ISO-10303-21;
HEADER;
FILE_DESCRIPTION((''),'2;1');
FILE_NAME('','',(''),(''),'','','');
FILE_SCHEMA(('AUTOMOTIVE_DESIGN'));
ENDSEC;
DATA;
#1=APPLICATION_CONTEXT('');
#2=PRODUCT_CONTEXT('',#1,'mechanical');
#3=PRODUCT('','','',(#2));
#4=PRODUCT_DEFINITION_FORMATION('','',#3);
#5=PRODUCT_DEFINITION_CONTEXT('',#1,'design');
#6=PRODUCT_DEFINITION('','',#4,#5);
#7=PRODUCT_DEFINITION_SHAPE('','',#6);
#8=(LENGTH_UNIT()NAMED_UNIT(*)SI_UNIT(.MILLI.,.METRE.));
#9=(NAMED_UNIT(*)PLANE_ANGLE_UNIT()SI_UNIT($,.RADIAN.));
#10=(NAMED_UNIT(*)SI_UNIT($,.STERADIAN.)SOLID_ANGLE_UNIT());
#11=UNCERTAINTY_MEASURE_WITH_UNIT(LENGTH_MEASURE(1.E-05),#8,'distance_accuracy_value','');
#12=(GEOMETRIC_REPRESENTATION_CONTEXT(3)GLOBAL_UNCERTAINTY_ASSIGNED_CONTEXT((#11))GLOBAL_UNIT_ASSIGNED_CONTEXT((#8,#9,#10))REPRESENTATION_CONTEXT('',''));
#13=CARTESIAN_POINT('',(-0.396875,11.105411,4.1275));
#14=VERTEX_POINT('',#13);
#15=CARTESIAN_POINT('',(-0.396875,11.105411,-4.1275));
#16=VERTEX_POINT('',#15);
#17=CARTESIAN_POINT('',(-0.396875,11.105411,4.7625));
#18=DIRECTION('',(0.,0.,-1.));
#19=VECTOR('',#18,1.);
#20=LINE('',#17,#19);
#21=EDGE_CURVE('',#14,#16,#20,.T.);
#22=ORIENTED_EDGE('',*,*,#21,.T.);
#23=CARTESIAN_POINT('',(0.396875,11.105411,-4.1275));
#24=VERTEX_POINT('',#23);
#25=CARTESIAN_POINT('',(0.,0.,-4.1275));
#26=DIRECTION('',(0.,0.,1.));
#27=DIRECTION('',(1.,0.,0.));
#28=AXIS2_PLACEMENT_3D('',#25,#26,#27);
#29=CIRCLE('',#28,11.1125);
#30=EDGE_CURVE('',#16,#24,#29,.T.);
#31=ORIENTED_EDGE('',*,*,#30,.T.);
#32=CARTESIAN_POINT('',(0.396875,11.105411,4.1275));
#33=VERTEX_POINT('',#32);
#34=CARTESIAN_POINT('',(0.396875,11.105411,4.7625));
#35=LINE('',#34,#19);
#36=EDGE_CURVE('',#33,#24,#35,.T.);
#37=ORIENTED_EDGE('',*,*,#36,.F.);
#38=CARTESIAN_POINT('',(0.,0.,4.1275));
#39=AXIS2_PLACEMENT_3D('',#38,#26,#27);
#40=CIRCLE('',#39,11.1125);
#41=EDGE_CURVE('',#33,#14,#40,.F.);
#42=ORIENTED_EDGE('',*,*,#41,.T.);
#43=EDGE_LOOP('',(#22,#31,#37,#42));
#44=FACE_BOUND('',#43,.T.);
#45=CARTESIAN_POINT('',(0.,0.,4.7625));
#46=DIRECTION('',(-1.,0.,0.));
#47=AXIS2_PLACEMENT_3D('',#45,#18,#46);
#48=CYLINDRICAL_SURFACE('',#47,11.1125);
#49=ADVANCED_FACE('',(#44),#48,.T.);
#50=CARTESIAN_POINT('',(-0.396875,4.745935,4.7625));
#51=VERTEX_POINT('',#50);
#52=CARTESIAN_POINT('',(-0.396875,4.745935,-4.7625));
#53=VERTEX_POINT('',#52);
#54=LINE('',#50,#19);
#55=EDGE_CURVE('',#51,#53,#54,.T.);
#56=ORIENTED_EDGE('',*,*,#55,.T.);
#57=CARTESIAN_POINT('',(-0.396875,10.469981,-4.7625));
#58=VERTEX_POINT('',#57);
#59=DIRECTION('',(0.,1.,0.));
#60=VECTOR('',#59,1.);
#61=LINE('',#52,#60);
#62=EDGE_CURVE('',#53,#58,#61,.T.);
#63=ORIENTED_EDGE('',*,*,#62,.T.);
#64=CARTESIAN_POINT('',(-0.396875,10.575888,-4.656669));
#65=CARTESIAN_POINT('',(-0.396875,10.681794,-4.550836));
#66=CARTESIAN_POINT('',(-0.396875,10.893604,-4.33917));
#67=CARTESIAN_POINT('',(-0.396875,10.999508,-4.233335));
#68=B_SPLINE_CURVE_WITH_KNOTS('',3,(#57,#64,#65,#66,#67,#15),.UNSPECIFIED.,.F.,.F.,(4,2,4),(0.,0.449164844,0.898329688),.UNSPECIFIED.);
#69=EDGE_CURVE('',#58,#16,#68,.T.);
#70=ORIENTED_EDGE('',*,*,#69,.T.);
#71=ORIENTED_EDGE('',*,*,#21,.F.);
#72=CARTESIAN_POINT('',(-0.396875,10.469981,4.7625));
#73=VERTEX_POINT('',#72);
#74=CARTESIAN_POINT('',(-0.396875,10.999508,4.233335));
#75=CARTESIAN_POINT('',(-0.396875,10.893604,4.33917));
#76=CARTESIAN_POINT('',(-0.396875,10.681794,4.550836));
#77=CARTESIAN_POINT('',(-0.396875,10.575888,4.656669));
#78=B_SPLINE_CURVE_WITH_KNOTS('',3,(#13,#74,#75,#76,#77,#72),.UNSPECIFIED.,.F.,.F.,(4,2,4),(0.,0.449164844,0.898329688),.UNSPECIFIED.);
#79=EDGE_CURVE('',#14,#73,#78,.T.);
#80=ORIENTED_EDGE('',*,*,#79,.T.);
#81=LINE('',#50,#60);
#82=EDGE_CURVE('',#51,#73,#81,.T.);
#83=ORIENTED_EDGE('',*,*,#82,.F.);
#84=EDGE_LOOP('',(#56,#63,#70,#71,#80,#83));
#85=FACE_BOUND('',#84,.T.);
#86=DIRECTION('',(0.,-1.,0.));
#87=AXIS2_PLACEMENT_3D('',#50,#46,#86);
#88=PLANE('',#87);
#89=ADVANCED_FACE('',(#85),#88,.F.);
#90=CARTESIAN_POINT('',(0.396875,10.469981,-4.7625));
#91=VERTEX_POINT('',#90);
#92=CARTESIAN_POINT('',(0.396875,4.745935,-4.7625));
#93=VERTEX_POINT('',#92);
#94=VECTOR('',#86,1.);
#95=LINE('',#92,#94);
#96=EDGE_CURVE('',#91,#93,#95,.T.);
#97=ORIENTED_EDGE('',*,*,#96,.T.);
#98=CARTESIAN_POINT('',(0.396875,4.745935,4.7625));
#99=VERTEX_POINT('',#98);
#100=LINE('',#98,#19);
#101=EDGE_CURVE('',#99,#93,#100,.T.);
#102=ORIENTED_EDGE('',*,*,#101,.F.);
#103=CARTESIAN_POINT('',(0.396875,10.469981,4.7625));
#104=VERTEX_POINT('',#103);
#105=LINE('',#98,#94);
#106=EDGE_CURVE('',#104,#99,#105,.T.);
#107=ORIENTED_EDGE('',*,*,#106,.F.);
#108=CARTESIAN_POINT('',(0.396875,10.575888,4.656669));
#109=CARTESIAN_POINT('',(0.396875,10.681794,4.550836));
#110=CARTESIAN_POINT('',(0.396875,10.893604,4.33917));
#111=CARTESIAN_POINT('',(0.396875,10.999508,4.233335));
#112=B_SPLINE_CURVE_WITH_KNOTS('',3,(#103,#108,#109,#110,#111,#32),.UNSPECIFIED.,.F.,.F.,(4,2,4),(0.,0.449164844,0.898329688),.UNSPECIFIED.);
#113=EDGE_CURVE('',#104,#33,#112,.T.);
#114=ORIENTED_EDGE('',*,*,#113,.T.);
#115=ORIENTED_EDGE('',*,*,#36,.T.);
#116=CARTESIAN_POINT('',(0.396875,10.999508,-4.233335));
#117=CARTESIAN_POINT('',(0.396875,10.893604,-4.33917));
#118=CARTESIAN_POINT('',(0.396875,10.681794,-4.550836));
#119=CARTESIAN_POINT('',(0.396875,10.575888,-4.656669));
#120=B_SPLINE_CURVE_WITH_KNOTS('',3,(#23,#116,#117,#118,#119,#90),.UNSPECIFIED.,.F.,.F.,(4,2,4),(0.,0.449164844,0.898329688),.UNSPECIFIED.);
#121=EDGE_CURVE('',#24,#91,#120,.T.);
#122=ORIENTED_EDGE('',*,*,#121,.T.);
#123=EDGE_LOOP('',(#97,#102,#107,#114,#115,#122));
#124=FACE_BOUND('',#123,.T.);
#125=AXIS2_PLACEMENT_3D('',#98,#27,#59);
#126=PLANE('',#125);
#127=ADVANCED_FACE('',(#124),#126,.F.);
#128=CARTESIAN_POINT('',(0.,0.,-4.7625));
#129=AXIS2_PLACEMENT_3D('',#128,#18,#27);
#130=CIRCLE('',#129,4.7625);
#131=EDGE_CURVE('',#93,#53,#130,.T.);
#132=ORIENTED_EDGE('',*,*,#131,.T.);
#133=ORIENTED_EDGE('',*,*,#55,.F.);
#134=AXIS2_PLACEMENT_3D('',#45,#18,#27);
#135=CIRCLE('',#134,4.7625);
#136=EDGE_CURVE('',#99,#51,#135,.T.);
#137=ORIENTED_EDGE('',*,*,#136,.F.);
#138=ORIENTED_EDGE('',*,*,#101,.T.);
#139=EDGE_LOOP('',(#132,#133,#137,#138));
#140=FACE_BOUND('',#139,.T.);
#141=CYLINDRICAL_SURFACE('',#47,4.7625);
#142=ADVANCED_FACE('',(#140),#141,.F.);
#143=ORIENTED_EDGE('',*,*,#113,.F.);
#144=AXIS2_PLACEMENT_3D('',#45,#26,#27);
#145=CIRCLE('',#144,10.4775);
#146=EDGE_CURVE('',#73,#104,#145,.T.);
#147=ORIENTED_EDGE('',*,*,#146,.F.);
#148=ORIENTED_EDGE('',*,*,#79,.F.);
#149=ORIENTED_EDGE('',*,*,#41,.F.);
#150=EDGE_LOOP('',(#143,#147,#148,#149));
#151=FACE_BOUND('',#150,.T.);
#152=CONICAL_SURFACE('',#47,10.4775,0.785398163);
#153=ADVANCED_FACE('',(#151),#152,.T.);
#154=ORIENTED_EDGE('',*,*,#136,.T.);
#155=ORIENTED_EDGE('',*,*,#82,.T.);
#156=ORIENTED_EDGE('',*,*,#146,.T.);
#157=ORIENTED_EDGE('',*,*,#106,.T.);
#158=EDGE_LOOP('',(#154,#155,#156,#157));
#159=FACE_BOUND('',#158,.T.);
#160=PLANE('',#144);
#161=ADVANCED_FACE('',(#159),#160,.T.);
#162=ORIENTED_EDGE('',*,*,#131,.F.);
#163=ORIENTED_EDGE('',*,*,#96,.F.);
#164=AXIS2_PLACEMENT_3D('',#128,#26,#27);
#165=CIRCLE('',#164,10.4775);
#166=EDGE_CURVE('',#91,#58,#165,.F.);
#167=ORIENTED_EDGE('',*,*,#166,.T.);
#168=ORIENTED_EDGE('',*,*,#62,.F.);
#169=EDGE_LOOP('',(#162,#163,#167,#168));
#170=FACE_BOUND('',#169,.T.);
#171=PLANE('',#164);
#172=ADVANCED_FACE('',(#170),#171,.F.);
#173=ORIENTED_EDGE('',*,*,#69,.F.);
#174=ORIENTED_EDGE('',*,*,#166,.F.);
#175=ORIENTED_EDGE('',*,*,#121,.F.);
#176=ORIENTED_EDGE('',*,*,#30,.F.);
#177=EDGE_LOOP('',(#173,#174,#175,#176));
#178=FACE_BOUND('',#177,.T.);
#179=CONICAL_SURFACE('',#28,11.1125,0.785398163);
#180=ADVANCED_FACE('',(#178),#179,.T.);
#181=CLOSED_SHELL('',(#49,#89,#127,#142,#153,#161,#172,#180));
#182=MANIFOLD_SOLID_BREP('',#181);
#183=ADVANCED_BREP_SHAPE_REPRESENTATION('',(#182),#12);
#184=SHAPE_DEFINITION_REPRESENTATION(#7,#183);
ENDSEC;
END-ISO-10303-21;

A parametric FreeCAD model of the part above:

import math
import FreeCAD as App
import Part
import Sketcher
Q = App.Units.Quantity


def edges_at(feature, points):
    """Names of the edges that pass closest to the given points."""
    edges = feature.Shape.Edges
    near = lambda p: min(range(len(edges)), key=lambda i: edges[i].distToShape(Part.Vertex(*p))[0])
    return sorted({f"Edge{near(p) + 1}" for p in points})

doc = App.newDocument("Part")
params = doc.addObject("Spreadsheet::Sheet", "Params")
for row, (alias, value) in enumerate([
    ("sketch1_radius", "0.4375 in"),
    ("sketch1_radius2", "0.1875 in"),
    ("pad1_length", "0.375 in"),
    ("chamfer_size", "0.025 in"),
], start=1):
    params.set(f"A{row}", alias)
    params.set(f"B{row}", "=" + value)
    params.setAlias(f"B{row}", alias)

body = doc.addObject("PartDesign::Body", "Body")

sketch1 = doc.addObject("Sketcher::SketchObject", "Sketch")
body.addObject(sketch1)
sketch1.AttachmentSupport = (doc.XY_Plane, [""])
sketch1.MapMode = "FlatFace"
sketch1.addGeometry([
    Part.LineSegment(App.Vector(-0.4, 4.7, 0), App.Vector(-0.4, 11.1, 0)),
    Part.ArcOfCircle(Part.Circle(App.Vector(0, 0, 0), App.Vector(0, 0, 1), 11.1), math.radians(92), math.radians(448)),
    Part.LineSegment(App.Vector(0.4, 11.1, 0), App.Vector(0.4, 4.7, 0)),
    Part.ArcOfCircle(Part.Circle(App.Vector(0, 0, 0), App.Vector(0, 0, 1), 4.8), math.radians(95), math.radians(445)),
], False)
sketch1.addConstraint([
    Sketcher.Constraint("Coincident", 0, 2, 1, 1),
    Sketcher.Constraint("Coincident", 1, 2, 2, 1),
    Sketcher.Constraint("Coincident", 2, 2, 3, 2),
    Sketcher.Constraint("Coincident", 3, 1, 0, 1),
    Sketcher.Constraint("Vertical", 0),
    Sketcher.Constraint("Vertical", 2),
    Sketcher.Constraint("Coincident", 1, 3, -1, 1),
    Sketcher.Constraint("Coincident", 3, 3, -1, 1),
    Sketcher.Constraint("Horizontal", 0, 2, 1, 2),
    Sketcher.Constraint("Radius", 1, Q("0.4375 in")),
    Sketcher.Constraint("Radius", 3, Q("0.1875 in")),
    Sketcher.Constraint("DistanceX", 0, 2, -1, 1, Q("0.015625 in")),
])
sketch1.setExpression("Constraints[9]", "Params.sketch1_radius")
sketch1.setExpression("Constraints[10]", "Params.sketch1_radius2")
pad1 = doc.addObject("PartDesign::Pad", "Pad")
body.addObject(pad1)
pad1.Profile = sketch1
pad1.setExpression("Length", "Params.pad1_length")
pad1.Midplane = True
doc.recompute()

chamfer = doc.addObject("PartDesign::Chamfer", "Chamfer")
body.addObject(chamfer)
chamfer.Base = (pad1, edges_at(pad1, [(0, -11.113, 4.763), (0, -11.113, -4.763)]))
chamfer.setExpression("Size", "Params.chamfer_size")

doc.recompute()
